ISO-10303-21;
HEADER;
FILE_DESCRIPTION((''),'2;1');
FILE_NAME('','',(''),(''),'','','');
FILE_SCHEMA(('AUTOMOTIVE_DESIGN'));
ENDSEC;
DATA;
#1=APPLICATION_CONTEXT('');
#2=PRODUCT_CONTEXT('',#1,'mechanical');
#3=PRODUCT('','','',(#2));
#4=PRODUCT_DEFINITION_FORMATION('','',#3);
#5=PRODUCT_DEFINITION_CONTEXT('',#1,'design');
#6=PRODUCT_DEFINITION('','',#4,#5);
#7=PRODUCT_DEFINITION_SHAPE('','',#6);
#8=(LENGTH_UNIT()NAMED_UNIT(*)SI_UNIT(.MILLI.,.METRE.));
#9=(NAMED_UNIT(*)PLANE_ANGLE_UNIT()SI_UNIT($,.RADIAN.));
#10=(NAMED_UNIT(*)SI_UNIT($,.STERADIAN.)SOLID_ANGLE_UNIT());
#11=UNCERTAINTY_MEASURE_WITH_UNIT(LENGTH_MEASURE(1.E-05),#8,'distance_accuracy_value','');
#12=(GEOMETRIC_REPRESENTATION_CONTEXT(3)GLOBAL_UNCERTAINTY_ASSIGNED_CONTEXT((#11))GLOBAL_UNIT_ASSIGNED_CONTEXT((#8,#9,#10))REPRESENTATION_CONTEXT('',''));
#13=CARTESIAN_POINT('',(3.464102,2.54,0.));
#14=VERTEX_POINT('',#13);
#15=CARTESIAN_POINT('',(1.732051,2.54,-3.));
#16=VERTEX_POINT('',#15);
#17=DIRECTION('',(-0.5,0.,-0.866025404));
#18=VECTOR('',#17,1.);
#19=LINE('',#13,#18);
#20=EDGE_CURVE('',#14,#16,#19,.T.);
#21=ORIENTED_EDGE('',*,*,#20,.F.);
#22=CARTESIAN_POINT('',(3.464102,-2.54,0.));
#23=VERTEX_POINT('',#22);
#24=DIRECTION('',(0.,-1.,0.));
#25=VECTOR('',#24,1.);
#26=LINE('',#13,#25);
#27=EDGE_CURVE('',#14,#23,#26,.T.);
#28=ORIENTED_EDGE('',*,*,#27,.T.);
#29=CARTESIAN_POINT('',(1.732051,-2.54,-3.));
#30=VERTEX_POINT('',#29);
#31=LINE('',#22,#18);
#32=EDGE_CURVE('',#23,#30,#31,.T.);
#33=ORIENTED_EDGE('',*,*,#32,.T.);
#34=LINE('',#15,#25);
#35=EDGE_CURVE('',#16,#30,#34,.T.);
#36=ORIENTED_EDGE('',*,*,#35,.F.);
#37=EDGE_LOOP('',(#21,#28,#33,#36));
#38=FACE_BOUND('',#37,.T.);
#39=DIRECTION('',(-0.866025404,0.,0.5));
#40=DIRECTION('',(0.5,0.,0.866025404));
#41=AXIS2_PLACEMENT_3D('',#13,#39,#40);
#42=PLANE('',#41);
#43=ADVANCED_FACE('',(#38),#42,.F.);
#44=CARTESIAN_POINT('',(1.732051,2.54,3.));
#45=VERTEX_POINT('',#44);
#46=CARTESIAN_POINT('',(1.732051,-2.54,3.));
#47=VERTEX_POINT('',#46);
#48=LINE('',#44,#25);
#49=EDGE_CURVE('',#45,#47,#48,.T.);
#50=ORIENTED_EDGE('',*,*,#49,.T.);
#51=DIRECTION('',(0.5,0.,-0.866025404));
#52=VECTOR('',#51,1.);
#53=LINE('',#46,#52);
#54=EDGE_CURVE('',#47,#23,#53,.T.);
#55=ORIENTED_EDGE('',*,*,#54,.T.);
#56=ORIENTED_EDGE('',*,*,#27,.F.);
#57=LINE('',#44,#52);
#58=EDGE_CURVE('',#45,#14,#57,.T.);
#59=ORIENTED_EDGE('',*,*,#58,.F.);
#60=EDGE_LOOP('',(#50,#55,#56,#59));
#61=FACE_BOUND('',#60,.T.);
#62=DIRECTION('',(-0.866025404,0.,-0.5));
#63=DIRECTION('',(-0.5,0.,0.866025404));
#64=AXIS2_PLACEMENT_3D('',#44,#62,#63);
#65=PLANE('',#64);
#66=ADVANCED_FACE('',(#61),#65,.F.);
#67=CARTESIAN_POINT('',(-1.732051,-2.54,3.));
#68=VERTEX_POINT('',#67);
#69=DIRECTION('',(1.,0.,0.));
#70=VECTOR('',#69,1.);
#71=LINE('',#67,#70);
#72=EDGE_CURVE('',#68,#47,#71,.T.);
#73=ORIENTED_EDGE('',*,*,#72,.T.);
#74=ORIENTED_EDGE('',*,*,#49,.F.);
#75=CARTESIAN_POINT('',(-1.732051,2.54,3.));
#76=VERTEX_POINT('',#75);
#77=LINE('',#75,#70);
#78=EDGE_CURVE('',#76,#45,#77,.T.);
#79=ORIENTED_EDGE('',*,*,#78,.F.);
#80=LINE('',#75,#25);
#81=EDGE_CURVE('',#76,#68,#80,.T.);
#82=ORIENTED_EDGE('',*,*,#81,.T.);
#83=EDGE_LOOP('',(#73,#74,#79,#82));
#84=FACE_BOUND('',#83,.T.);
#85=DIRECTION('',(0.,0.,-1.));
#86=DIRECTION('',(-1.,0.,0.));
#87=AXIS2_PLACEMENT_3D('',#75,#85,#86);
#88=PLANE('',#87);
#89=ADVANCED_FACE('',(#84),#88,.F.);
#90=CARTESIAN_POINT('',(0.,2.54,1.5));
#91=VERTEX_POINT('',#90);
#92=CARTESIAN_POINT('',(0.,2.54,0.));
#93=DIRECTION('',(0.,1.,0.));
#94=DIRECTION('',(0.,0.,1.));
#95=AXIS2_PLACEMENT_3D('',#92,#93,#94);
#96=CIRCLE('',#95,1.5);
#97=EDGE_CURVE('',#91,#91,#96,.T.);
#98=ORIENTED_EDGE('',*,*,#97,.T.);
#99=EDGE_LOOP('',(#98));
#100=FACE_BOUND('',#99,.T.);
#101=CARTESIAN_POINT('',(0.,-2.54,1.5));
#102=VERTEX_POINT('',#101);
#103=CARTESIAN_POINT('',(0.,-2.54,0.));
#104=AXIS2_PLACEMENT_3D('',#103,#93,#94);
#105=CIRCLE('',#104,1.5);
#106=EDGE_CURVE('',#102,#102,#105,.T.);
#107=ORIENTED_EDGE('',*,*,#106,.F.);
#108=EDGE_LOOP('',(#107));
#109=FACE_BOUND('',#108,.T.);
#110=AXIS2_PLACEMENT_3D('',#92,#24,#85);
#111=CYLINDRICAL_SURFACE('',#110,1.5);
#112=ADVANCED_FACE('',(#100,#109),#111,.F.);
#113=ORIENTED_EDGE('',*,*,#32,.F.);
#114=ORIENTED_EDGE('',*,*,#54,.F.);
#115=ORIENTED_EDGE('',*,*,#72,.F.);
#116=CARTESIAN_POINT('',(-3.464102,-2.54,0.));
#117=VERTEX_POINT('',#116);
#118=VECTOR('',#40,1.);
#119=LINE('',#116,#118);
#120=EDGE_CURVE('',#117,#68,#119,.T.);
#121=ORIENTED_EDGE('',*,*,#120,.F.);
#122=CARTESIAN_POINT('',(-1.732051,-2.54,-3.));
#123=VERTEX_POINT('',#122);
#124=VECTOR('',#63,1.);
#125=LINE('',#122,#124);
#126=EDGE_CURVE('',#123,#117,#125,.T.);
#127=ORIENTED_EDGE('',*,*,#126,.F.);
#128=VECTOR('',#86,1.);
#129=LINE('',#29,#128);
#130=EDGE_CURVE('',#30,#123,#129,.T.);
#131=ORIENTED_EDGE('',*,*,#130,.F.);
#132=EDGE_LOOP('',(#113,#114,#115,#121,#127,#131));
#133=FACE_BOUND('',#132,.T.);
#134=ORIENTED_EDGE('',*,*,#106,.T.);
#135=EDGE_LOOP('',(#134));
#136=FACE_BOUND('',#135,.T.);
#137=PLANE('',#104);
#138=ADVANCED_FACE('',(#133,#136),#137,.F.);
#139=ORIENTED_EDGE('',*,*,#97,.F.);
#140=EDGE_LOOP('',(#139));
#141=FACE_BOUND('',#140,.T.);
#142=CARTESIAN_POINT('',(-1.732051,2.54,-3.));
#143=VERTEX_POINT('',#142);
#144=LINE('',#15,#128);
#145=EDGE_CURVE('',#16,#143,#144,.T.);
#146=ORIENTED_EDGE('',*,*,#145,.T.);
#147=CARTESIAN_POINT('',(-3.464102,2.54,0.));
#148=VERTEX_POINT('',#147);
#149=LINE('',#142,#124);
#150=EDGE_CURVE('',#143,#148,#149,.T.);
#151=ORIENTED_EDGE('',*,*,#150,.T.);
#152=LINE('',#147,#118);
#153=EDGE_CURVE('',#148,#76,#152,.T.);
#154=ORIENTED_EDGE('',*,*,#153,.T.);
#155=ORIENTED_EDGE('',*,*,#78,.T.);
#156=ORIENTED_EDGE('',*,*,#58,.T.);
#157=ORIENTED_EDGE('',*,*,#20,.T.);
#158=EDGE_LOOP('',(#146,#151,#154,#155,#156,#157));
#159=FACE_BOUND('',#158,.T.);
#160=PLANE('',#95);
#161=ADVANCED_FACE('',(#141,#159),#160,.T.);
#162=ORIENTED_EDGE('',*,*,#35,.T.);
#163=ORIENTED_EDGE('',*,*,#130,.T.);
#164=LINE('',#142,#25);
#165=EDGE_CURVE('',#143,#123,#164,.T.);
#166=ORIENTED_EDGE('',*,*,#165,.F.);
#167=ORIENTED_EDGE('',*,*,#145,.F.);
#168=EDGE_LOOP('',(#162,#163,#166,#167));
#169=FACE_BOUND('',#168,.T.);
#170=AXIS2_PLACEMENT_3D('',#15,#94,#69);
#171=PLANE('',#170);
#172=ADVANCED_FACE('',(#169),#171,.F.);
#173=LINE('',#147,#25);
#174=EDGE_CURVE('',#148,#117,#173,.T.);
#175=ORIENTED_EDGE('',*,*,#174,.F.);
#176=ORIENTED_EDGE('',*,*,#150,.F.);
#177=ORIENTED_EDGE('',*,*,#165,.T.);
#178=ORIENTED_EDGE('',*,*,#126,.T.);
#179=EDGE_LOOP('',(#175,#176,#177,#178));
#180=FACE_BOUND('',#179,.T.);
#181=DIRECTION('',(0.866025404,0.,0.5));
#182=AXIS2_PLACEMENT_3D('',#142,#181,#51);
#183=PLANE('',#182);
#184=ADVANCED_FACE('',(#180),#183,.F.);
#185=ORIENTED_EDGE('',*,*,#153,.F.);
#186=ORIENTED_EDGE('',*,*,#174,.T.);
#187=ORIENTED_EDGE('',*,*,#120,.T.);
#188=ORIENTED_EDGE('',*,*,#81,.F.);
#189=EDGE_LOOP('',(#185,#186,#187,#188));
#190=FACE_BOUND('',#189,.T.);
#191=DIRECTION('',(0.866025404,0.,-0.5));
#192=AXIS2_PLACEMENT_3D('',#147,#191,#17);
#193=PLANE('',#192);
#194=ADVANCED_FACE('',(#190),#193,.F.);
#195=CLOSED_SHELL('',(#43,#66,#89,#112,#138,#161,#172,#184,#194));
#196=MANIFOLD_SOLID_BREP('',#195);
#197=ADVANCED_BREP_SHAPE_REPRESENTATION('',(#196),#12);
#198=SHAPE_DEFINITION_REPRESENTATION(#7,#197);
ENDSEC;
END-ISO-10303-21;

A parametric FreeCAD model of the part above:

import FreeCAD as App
import Part
import Sketcher
from FreeCAD import Vector
Q = App.Units.Quantity


def add_polygon(sketch, points):
    """Adds a closed chain of lines whose ends are joined by coincident constraints."""
    first, n = sketch.GeometryCount, len(points)
    for a, b in zip(points, points[1:] + points[:1]):
        sketch.addGeometry(Part.LineSegment(App.Vector(*a, 0), App.Vector(*b, 0)), False)
    for i in range(n):
        sketch.addConstraint(Sketcher.Constraint("Coincident", first + i, 2, first + (i + 1) % n, 1))

doc = App.newDocument("Part")
params = doc.addObject("Spreadsheet::Sheet", "Params")
for row, (alias, value) in enumerate([
    ("sketch1_diameter", "3 mm"),
    ("pad1_length", "5.08 mm"),
], start=1):
    params.set(f"A{row}", alias)
    params.set(f"B{row}", "=" + value)
    params.setAlias(f"B{row}", alias)

body = doc.addObject("PartDesign::Body", "Body")

sketch1 = body.newObject("Sketcher::SketchObject", "Sketch")
sketch1.AttachmentSupport = (doc.getObject("XZ_Plane"), [""])
sketch1.MapMode = "FlatFace"
add_polygon(sketch1, [(-1.7, 3), (1.7, 3), (3.5, 0), (1.7, -3), (-1.7, -3), (-3.5, 0)])
sketch1.addGeometry(Part.Circle(Vector(0, 0, 0), Vector(0, 0, 1), 1.5), False)
sketch1.addConstraint([
    Sketcher.Constraint("Horizontal", 0),
    Sketcher.Constraint("Horizontal", 3),
    Sketcher.Constraint("Coincident", 6, 3, -1, 1),
    Sketcher.Constraint("Symmetric", 0, 2, 3, 2, -1, 1),
    Sketcher.Constraint("Symmetric", 1, 2, 4, 2, -1, 1),
    Sketcher.Constraint("PointOnObject", 1, 2, -1),
    Sketcher.Constraint("Parallel", 2, 5),
    Sketcher.Constraint("Vertical", 0, 2, 2, 2),
    Sketcher.Constraint("Diameter", 6, Q("3 mm")),
    Sketcher.Constraint("Angle", 1, Q("-60 deg")),
    Sketcher.Constraint("DistanceY", -1, 1, 0, 2, Q("3 mm")),
    Sketcher.Constraint("DistanceX", 0, 1, 0, 2, Q("3.464102 mm")),
])
sketch1.setExpression("Constraints[14]", "Params.sketch1_diameter")
pad1 = body.newObject("PartDesign::Pad", "Pad")
pad1.Profile = sketch1
pad1.setExpression("Length", "Params.pad1_length")
pad1.Midplane = True

doc.recompute()
